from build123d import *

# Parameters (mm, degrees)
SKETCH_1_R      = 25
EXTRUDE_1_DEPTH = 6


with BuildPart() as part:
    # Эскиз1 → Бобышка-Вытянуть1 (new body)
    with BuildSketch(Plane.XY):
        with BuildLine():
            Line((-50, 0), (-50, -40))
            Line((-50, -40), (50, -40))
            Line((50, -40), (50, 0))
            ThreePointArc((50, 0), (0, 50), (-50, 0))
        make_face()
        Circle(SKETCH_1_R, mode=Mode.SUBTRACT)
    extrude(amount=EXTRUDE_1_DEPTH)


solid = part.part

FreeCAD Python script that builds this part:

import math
import FreeCAD as App
import Part
import Sketcher
from FreeCAD import Vector
Q = App.Units.Quantity

doc = App.newDocument("Part")
body = doc.addObject("PartDesign::Body", "Body")

# Sketch on XY plane
sketch1 = body.newObject("Sketcher::SketchObject", "Sketch")
sketch1.AttachmentSupport = (doc.getObject("XY_Plane"), [""])
sketch1.MapMode = "FlatFace"
sketch1.addGeometry([
    Part.LineSegment(Vector(-50, 0, 0), Vector(-50, -40, 0)),  # 0
    Part.LineSegment(Vector(-50, -40, 0), Vector(50, -40, 0)),  # 1
    Part.LineSegment(Vector(50, -40, 0), Vector(50, 0, 0)),  # 2
    Part.ArcOfCircle(Part.Circle(Vector(0, 0, 0), Vector(0, 0, 1), 50), math.radians(0), math.radians(180)),  # 3
    Part.Circle(Vector(0, 0, 0), Vector(0, 0, 1), 25),  # 4
], False)
sketch1.addConstraint([
    Sketcher.Constraint("Coincident", 0, 2, 1, 1),
    Sketcher.Constraint("Coincident", 1, 2, 2, 1),
    Sketcher.Constraint("Tangent", 2, 2, 3, 1),
    Sketcher.Constraint("Tangent", 3, 2, 0, 1),
    Sketcher.Constraint("Vertical", 0),
    Sketcher.Constraint("Horizontal", 1),
    Sketcher.Constraint("Vertical", 2),
    Sketcher.Constraint("Coincident", 3, 3, -1, 1),
    Sketcher.Constraint("Coincident", 4, 3, -1, 1),
    Sketcher.Constraint("Diameter", 4, Q("50 mm")),
    Sketcher.Constraint("Radius", 3, Q("50 mm")),
    Sketcher.Constraint("DistanceY", 0, 2, 0, 1, Q("40 mm")),
])
pad1 = body.newObject("PartDesign::Pad", "Pad")
pad1.Profile = sketch1
pad1.Length = 6

doc.recompute()
